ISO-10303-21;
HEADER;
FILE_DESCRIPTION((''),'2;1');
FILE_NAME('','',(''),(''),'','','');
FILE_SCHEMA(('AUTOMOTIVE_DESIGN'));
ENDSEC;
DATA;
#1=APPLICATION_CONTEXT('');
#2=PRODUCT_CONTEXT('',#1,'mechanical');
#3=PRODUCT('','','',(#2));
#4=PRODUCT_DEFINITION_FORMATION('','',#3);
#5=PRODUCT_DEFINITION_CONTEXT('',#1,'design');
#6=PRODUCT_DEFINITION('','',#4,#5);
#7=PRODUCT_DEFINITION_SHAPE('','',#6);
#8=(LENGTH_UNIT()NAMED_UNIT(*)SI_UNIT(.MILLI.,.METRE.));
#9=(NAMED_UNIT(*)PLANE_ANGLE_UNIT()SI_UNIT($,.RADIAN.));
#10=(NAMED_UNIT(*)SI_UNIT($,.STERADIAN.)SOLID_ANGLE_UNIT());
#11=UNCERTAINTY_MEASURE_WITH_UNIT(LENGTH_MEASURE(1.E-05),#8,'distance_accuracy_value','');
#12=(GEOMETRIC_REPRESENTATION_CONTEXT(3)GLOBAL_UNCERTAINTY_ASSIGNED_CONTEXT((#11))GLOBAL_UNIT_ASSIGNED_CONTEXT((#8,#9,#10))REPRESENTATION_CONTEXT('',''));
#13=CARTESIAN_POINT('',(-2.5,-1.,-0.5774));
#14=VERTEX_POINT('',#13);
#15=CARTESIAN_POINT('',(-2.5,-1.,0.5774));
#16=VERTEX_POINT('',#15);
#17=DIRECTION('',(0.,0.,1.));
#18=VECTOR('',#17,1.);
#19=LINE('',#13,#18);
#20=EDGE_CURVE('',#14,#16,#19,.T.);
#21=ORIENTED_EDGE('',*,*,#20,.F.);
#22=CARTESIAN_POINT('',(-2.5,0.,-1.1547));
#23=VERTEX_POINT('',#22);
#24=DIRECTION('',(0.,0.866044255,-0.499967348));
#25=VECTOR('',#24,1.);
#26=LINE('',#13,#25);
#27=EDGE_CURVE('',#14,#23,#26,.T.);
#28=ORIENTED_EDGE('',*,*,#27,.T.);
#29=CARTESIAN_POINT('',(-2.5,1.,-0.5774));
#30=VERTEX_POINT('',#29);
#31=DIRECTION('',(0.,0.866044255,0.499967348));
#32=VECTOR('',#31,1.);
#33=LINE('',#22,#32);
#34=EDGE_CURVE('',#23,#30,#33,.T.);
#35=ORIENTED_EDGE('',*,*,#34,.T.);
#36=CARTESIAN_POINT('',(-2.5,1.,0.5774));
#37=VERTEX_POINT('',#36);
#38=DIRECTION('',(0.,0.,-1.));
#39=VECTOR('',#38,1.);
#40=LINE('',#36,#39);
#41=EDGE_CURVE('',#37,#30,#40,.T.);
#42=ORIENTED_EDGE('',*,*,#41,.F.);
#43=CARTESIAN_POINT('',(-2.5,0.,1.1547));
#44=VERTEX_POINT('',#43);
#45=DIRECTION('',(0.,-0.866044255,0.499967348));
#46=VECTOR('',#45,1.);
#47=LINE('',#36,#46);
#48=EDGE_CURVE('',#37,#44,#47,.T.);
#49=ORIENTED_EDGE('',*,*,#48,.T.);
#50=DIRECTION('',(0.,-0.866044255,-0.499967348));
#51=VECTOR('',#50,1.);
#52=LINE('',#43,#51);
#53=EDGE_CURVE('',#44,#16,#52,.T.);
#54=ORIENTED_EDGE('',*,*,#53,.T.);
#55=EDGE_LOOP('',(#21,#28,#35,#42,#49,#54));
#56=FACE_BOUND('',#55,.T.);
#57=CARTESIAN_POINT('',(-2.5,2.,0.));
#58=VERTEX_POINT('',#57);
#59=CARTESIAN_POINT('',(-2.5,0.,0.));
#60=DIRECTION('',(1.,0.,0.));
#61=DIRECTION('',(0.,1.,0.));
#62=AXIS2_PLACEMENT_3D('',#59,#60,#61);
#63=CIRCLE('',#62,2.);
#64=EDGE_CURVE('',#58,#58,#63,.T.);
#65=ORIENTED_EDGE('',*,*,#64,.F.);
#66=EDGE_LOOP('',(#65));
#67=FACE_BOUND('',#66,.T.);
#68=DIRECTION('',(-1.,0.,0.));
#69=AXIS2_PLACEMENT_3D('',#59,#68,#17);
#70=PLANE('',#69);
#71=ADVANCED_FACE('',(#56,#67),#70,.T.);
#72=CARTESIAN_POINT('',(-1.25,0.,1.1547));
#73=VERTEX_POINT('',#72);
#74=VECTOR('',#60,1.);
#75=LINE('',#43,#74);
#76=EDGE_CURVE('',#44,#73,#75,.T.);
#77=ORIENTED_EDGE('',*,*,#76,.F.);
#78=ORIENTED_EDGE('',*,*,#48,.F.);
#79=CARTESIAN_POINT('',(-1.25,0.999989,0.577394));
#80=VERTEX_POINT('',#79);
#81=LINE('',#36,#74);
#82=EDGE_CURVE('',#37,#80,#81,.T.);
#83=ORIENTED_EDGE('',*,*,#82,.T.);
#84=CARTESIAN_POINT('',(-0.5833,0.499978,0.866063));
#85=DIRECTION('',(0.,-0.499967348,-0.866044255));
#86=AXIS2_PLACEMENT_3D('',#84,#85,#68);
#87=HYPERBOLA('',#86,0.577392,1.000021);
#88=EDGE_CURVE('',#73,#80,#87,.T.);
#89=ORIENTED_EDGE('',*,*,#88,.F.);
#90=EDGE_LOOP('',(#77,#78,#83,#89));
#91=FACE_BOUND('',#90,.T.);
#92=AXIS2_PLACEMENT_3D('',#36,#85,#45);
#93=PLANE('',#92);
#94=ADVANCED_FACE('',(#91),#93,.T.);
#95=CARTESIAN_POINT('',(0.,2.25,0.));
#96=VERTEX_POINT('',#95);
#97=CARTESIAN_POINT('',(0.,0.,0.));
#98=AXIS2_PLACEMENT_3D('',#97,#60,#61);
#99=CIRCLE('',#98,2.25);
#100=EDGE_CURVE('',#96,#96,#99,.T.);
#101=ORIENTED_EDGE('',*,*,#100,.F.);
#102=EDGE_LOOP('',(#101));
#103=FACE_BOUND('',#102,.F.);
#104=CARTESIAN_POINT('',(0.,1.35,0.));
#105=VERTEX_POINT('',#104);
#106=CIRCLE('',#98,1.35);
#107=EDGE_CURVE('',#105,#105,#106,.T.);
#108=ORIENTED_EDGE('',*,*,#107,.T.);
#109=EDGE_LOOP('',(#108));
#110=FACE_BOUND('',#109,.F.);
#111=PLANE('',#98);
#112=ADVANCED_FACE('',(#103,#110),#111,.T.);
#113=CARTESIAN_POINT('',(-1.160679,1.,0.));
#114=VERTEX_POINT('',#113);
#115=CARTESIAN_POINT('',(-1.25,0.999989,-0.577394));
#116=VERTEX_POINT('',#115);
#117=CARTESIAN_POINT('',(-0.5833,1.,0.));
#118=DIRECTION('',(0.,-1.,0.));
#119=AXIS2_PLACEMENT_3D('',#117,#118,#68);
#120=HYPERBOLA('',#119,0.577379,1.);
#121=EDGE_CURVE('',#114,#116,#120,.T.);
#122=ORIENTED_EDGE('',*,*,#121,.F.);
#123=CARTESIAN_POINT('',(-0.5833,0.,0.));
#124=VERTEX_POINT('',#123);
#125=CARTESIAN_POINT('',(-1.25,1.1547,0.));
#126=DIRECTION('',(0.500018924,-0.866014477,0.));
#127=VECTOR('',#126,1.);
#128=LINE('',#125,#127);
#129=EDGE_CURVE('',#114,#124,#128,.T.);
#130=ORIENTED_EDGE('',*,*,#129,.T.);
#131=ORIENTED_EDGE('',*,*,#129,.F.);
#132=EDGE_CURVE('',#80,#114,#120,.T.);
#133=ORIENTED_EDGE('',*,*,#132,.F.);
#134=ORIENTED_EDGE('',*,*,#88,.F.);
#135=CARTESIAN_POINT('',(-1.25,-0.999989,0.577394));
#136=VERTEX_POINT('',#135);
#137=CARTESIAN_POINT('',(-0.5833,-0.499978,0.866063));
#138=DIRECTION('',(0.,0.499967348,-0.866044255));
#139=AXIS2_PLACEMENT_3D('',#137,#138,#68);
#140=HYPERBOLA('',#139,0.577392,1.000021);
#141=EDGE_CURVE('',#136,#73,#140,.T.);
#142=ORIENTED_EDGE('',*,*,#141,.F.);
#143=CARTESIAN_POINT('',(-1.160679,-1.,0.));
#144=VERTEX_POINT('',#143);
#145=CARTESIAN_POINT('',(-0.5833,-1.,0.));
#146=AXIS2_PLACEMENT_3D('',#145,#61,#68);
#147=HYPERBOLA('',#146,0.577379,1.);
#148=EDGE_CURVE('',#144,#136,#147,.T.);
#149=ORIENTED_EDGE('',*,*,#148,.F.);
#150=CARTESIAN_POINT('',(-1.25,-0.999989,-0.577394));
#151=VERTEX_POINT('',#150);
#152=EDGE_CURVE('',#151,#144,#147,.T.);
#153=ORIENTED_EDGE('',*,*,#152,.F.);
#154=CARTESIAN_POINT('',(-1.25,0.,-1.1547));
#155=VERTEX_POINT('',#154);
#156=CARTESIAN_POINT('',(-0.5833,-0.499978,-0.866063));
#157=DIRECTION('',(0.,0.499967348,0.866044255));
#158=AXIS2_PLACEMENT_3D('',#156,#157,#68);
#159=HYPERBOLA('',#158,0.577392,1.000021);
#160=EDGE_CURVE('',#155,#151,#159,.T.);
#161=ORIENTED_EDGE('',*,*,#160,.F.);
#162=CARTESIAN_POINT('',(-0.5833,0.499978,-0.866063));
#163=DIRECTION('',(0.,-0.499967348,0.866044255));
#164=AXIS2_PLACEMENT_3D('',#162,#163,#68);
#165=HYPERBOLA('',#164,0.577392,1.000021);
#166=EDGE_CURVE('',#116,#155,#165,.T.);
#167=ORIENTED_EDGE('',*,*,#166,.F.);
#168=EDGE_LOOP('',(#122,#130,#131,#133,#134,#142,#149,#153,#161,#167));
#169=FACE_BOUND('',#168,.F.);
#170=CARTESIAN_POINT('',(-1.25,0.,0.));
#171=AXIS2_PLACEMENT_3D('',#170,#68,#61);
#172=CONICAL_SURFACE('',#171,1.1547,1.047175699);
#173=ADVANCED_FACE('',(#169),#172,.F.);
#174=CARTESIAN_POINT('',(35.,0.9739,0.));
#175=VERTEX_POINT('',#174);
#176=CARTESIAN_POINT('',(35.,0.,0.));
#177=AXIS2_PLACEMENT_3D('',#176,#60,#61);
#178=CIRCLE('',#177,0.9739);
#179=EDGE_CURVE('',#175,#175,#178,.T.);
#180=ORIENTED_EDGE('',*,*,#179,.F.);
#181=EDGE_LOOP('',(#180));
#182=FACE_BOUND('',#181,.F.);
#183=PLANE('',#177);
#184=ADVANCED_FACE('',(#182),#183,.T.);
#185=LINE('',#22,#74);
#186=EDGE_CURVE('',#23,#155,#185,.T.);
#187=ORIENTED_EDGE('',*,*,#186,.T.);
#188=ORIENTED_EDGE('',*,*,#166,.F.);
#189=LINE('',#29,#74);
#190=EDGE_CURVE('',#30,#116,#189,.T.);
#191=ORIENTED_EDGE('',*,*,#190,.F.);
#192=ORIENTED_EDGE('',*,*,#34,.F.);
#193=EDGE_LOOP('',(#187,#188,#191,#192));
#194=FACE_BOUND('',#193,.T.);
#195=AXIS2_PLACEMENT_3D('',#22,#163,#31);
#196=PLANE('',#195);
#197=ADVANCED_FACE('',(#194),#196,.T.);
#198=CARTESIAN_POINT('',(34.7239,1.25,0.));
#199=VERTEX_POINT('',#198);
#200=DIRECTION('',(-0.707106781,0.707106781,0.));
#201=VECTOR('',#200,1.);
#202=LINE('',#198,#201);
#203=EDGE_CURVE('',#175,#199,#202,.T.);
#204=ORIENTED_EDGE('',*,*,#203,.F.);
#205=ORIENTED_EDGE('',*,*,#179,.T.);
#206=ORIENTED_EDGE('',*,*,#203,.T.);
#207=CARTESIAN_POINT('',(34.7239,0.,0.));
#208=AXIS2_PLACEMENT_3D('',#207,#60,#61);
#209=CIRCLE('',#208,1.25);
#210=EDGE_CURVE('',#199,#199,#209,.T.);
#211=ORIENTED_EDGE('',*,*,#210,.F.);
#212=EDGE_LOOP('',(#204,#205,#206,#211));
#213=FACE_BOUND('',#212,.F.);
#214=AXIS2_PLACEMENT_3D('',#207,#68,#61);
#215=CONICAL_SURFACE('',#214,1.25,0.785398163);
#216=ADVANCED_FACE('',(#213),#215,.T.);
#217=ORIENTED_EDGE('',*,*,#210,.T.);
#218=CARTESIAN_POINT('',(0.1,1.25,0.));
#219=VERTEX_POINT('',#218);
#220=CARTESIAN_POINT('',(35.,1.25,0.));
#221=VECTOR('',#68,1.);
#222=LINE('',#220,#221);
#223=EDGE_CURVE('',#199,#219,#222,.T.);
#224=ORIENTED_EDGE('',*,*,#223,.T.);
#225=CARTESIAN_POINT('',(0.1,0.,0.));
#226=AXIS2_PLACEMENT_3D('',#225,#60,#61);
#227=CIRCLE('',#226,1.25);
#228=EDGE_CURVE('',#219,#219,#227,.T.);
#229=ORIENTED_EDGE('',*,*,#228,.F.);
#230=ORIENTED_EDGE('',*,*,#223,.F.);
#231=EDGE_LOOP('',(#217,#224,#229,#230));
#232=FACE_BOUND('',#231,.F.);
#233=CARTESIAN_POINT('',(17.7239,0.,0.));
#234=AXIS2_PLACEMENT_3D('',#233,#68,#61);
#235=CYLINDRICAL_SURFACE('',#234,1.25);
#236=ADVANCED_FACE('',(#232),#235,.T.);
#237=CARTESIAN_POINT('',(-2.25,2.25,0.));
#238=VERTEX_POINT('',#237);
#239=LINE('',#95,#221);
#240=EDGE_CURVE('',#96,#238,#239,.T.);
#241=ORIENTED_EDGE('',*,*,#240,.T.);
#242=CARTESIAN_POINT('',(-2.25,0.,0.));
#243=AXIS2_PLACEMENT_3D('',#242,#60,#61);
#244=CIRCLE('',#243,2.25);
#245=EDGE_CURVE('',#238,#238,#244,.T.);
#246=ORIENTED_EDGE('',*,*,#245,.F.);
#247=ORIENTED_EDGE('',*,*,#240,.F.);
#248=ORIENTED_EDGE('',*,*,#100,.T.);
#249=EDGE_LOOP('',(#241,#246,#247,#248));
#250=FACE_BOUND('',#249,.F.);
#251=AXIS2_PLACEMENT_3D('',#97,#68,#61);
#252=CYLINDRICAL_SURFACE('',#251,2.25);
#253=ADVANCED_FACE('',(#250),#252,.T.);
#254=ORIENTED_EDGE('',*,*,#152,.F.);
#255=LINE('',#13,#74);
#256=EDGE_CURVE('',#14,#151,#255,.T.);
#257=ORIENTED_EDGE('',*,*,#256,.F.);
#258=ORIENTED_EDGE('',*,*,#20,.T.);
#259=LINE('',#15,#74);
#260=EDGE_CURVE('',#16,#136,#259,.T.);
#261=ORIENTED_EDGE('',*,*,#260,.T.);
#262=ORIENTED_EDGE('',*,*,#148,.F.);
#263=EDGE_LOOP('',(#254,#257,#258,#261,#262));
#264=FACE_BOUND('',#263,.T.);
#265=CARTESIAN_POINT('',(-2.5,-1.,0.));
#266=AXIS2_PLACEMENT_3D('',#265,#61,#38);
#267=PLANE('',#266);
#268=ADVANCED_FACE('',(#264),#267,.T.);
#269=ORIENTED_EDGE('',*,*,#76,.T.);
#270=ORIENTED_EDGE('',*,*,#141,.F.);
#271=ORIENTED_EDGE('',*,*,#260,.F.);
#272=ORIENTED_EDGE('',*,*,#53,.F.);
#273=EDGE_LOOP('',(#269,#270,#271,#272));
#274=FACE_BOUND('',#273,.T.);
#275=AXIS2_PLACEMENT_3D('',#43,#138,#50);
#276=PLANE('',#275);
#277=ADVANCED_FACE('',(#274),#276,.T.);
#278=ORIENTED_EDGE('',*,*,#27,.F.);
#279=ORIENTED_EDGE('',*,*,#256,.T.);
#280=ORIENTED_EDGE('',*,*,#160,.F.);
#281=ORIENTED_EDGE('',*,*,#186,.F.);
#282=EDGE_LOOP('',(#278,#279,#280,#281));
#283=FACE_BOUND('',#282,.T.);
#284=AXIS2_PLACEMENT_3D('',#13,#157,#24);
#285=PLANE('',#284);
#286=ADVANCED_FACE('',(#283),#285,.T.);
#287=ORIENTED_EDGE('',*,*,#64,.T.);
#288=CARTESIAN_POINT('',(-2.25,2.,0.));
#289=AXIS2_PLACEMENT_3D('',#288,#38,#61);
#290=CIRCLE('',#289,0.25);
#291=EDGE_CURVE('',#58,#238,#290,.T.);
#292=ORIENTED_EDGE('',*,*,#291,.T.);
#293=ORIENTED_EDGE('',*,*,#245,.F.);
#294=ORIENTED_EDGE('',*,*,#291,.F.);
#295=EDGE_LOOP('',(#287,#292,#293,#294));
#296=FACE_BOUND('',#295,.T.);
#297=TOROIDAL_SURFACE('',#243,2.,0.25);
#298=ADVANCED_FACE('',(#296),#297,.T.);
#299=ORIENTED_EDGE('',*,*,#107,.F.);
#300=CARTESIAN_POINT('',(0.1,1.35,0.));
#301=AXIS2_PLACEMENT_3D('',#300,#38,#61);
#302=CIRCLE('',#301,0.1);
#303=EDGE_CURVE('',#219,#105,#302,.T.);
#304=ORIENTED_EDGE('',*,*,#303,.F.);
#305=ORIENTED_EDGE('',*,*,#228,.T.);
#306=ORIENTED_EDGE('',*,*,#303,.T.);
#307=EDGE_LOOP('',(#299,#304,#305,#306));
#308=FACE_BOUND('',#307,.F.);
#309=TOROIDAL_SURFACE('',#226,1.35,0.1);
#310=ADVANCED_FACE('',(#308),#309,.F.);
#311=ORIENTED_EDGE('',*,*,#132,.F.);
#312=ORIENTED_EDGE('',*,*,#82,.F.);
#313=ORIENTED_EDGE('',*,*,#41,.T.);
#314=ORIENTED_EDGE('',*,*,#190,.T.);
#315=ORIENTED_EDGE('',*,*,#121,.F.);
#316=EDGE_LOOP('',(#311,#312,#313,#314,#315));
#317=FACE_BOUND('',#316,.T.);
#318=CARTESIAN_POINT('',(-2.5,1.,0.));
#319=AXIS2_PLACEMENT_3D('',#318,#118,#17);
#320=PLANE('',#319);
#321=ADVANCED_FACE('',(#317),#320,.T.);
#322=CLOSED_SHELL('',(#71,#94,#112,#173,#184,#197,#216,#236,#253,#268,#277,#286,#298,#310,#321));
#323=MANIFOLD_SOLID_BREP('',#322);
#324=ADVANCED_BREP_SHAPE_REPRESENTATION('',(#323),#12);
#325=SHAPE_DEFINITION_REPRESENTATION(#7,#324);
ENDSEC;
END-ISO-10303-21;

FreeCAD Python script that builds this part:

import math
import FreeCAD as App
import Part
import Sketcher


def edges_at(feature, points):
    """Names of the edges that pass closest to the given points."""
    edges = feature.Shape.Edges
    near = lambda p: min(range(len(edges)), key=lambda i: edges[i].distToShape(Part.Vertex(*p))[0])
    return sorted({f"Edge{near(p) + 1}" for p in points})


def add_polygon(sketch, points):
    """Adds a closed chain of lines whose ends are joined by coincident constraints."""
    first, n = sketch.GeometryCount, len(points)
    for a, b in zip(points, points[1:] + points[:1]):
        sketch.addGeometry(Part.LineSegment(App.Vector(*a, 0), App.Vector(*b, 0)), False)
    for i in range(n):
        sketch.addConstraint(Sketcher.Constraint("Coincident", first + i, 2, first + (i + 1) % n, 1))

doc = App.newDocument("Part")
body = doc.addObject("PartDesign::Body", "Body")

# Sketch on XY plane
sketch1 = body.newObject("Sketcher::SketchObject", "Sketch")
sketch1.AttachmentSupport = (doc.getObject("XY_Plane"), [""])
sketch1.MapMode = "FlatFace"
add_polygon(sketch1, [(-1.2, 1.2), (-0.6, 0), (35, 0), (35, 1.2), (0, 1.2), (0, 2.2), (-2.5, 2.2), (-2.5, 1.2)])  # lines 0-7
sketch1.addConstraint([
    Sketcher.Constraint("Horizontal", 1),
    Sketcher.Constraint("Vertical", 2),
    Sketcher.Constraint("Horizontal", 3),
    Sketcher.Constraint("Vertical", 4),
    Sketcher.Constraint("Horizontal", 5),
    Sketcher.Constraint("Vertical", 6),
    Sketcher.Constraint("Horizontal", 7),
    Sketcher.Constraint("PointOnObject", 0, 2, -1),
    Sketcher.Constraint("PointOnObject", 3, 2, -2),
    Sketcher.Constraint("Equal", 7, 2),
    Sketcher.Constraint("DistanceX", 3, 2, 3, 1, 35.0),
    Sketcher.Constraint("DistanceX", 5, 2, 5, 1, 2.5),
    Sketcher.Constraint("DistanceX", 7, 1, 7, 2, 1.25),
    Sketcher.Constraint("DistanceY", 4, 1, 4, 2, 1.0),
    Sketcher.Constraint("DistanceX", 1, 1, 1, 2, 35.5833),
    Sketcher.Constraint("DistanceY", 6, 2, 6, 1, 1.0953),
])
revolution = body.newObject("PartDesign::Revolution", "Revolution")
revolution.Profile = sketch1
revolution.ReferenceAxis = (sketch1, ["H_Axis"])
revolution.Angle = 360

# Sketch on YZ plane
sketch2 = body.newObject("Sketcher::SketchObject", "Sketch001")
sketch2.AttachmentSupport = (doc.getObject("YZ_Plane"), [""])
sketch2.MapMode = "FlatFace"
sketch2.AttachmentOffset = App.Placement(App.Vector(0, 0, -2.5), App.Rotation())
sketch2.addGeometry([
    Part.LineSegment(App.Vector(1, 0.6, 0), App.Vector(0, 1.2, 0)),  # 0
    Part.ArcOfCircle(Part.Circle(App.Vector(0, 0, 0), App.Vector(0, 0, 1), 1.2), math.radians(30), math.radians(90)),  # 1
    Part.ArcOfCircle(Part.Circle(App.Vector(0, 0, 0), App.Vector(0, 0, 1), 1.2), math.radians(90), math.radians(150)),  # 2
    Part.LineSegment(App.Vector(0, 1.2, 0), App.Vector(-1, 0.6, 0)),  # 3
    Part.ArcOfCircle(Part.Circle(App.Vector(0, 0, 0), App.Vector(0, 0, 1), 1.2), math.radians(-30), math.radians(30)),  # 4
    Part.LineSegment(App.Vector(1, 0.6, 0), App.Vector(1, -0.6, 0)),  # 5
    Part.LineSegment(App.Vector(-1, 0.6, 0), App.Vector(-1, -0.6, 0)),  # 6
    Part.ArcOfCircle(Part.Circle(App.Vector(0, 0, 0), App.Vector(0, 0, 1), 1.2), math.radians(150), math.radians(210)),  # 7
    Part.LineSegment(App.Vector(-1, -0.6, 0), App.Vector(0, -1.2, 0)),  # 8
    Part.ArcOfCircle(Part.Circle(App.Vector(0, 0, 0), App.Vector(0, 0, 1), 1.2), math.radians(-150), math.radians(-90)),  # 9
    Part.ArcOfCircle(Part.Circle(App.Vector(0, 0, 0), App.Vector(0, 0, 1), 1.2), math.radians(-90), math.radians(-30)),  # 10
    Part.LineSegment(App.Vector(0, -1.2, 0), App.Vector(1, -0.6, 0)),  # 11
], False)
sketch2.addConstraint([
    Sketcher.Constraint("Coincident", 0, 1, 1, 1),
    Sketcher.Constraint("Coincident", 1, 2, 0, 2),
    Sketcher.Constraint("Coincident", 2, 1, 3, 1),
    Sketcher.Constraint("Coincident", 3, 2, 2, 2),
    Sketcher.Constraint("Coincident", 4, 1, 5, 2),
    Sketcher.Constraint("Coincident", 5, 1, 4, 2),
    Sketcher.Constraint("Coincident", 6, 1, 7, 1),
    Sketcher.Constraint("Coincident", 7, 2, 6, 2),
    Sketcher.Constraint("Coincident", 8, 1, 9, 1),
    Sketcher.Constraint("Coincident", 9, 2, 8, 2),
    Sketcher.Constraint("Coincident", 10, 1, 11, 1),
    Sketcher.Constraint("Coincident", 11, 2, 10, 2),
    Sketcher.Constraint("Vertical", 5),
    Sketcher.Constraint("Vertical", 6),
    Sketcher.Constraint("Coincident", 1, 3, -1, 1),
    Sketcher.Constraint("Coincident", 2, 3, -1, 1),
    Sketcher.Constraint("Coincident", 4, 3, -1, 1),
    Sketcher.Constraint("Coincident", 7, 3, -1, 1),
    Sketcher.Constraint("Coincident", 9, 3, -1, 1),
    Sketcher.Constraint("Coincident", 10, 3, -1, 1),
    Sketcher.Constraint("Coincident", 2, 1, 1, 2),
    Sketcher.Constraint("Coincident", 5, 1, 0, 1),
    Sketcher.Constraint("Coincident", 6, 1, 3, 2),
    Sketcher.Constraint("Coincident", 8, 1, 7, 2),
    Sketcher.Constraint("Coincident", 10, 1, 9, 2),
    Sketcher.Constraint("PointOnObject", 1, 2, -2),
    Sketcher.Constraint("PointOnObject", 9, 2, -2),
    Sketcher.Constraint("Parallel", 0, 8),
    Sketcher.Constraint("Parallel", 3, 11),
    Sketcher.Constraint("DistanceX", -1, 1, 0, 1, 1.0),
    Sketcher.Constraint("Radius", 1, 1.1547),
])
pad1 = body.newObject("PartDesign::Pad", "Pad")
pad1.Profile = sketch2
pad1.Type = "UpToFirst"
doc.recompute()

fillet = body.newObject("PartDesign::Fillet", "Fillet")
fillet.Base = (pad1, edges_at(pad1, [(-2.5, -2.25, 0)]))
fillet.Radius = 0.25
doc.recompute()

chamfer = body.newObject("PartDesign::Chamfer", "Chamfer")
chamfer.Base = (fillet, edges_at(fillet, [(35, -1.25, 0)]))
chamfer.ChamferType = "Two distances"
chamfer.Size = 0.2761
chamfer.Size2 = 0.2761
doc.recompute()

fillet2 = body.newObject("PartDesign::Fillet", "Fillet001")
fillet2.Base = (chamfer, edges_at(chamfer, [(0, -1.25, 0)]))
fillet2.Radius = 0.1

doc.recompute()
